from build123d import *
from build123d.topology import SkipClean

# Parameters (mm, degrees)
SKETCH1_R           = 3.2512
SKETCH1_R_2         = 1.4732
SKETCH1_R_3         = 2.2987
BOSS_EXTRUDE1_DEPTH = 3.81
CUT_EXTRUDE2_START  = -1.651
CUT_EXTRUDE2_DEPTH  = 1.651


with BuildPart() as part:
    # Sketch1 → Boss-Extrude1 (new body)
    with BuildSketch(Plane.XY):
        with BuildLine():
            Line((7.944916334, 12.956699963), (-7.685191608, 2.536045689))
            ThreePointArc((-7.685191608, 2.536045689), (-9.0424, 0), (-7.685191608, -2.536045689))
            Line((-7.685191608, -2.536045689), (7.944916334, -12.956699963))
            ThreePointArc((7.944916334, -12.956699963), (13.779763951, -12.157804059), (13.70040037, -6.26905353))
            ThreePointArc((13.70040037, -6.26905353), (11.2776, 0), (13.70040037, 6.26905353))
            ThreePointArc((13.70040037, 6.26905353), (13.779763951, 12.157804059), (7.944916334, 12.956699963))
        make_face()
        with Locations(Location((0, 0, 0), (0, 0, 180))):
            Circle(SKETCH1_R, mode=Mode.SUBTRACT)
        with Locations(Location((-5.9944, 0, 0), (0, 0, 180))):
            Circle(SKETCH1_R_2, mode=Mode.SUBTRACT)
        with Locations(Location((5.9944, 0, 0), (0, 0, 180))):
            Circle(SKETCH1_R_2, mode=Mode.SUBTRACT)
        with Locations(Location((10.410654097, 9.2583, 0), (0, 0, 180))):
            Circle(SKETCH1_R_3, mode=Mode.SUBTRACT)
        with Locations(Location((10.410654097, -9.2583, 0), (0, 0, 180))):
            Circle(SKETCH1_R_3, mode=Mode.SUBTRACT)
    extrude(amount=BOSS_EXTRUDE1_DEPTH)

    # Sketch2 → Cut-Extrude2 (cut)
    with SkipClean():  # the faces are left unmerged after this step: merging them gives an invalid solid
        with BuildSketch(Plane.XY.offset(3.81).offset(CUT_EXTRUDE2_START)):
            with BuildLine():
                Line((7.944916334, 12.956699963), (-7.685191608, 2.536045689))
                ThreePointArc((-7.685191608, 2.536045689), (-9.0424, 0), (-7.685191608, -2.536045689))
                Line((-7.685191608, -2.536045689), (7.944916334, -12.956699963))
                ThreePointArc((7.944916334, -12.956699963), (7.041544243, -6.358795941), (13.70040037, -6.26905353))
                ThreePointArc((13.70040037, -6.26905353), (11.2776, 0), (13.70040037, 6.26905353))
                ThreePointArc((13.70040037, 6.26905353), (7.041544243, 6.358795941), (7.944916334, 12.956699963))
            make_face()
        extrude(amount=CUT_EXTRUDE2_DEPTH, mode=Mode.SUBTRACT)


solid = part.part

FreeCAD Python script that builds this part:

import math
import FreeCAD as App
import Part
import Sketcher
Q = App.Units.Quantity

doc = App.newDocument("Part")
body = doc.addObject("PartDesign::Body", "Body")

# Sketch on XY plane
sketch1 = body.newObject("Sketcher::SketchObject", "Sketch")
sketch1.AttachmentSupport = (doc.getObject("XY_Plane"), [""])
sketch1.MapMode = "FlatFace"
sketch1.addGeometry(Part.LineSegment(App.Vector(7.944916, 12.9567, 0), App.Vector(-7.685192, 2.536046, 0)), False)
sketch1.addGeometry(Part.ArcOfCircle(Part.Circle(App.Vector(-5.9944, 0, 0), App.Vector(0, 0, 1), 3.048), math.radians(123.691545), math.radians(236.308455)), False)
sketch1.addGeometry(Part.LineSegment(App.Vector(-7.685192, -2.536046, 0), App.Vector(7.944916, -12.9567, 0)), False)
sketch1.addGeometry(Part.ArcOfCircle(Part.Circle(App.Vector(10.410654, -9.2583, 0), App.Vector(0, 0, 1), 4.445), math.radians(-123.691545), math.radians(42.260031)), False)
sketch1.addGeometry(Part.ArcOfCircle(Part.Circle(App.Vector(20.599663, 0, 0), App.Vector(0, 0, 1), 9.322063), math.radians(137.739969), math.radians(222.260031)), False)
sketch1.addGeometry(Part.ArcOfCircle(Part.Circle(App.Vector(10.410654, 9.2583, 0), App.Vector(0, 0, 1), 4.445), math.radians(-42.260031), math.radians(123.691545)), False)
sketch1.addGeometry(Part.Circle(App.Vector(-5.9944, 0, 0), App.Vector(0, 0, 1), 1.4732), False)
sketch1.addGeometry(Part.Circle(App.Vector(10.410654, -9.2583, 0), App.Vector(0, 0, 1), 2.2987), False)
sketch1.addGeometry(Part.Circle(App.Vector(5.9944, 0, 0), App.Vector(0, 0, 1), 1.4732), False)
sketch1.addGeometry(Part.Circle(App.Vector(0, 0, 0), App.Vector(0, 0, 1), 3.2512), False)
sketch1.addGeometry(Part.Circle(App.Vector(10.410654, 9.2583, 0), App.Vector(0, 0, 1), 2.2987), False)
sketch1.addConstraint(Sketcher.Constraint("Tangent", 0, 2, 1, 1))
sketch1.addConstraint(Sketcher.Constraint("Tangent", 1, 2, 2, 1))
sketch1.addConstraint(Sketcher.Constraint("Tangent", 2, 2, 3, 1))
sketch1.addConstraint(Sketcher.Constraint("Tangent", 3, 2, 4, 2))
sketch1.addConstraint(Sketcher.Constraint("Tangent", 4, 1, 5, 1))
sketch1.addConstraint(Sketcher.Constraint("Tangent", 5, 2, 0, 1))
sketch1.addConstraint(Sketcher.Constraint("Coincident", 9, 3, -1, 1))
sketch1.addConstraint(Sketcher.Constraint("Coincident", 6, 3, 1, 3))
sketch1.addConstraint(Sketcher.Constraint("Coincident", 7, 3, 3, 3))
sketch1.addConstraint(Sketcher.Constraint("Coincident", 10, 3, 5, 3))
sketch1.addConstraint(Sketcher.Constraint("Equal", 3, 5))
sketch1.addConstraint(Sketcher.Constraint("Equal", 6, 8))
sketch1.addConstraint(Sketcher.Constraint("Equal", 7, 10))
sketch1.addConstraint(Sketcher.Constraint("Symmetric", 1, 3, 8, 3, -1, 1))
sketch1.addConstraint(Sketcher.Constraint("Symmetric", 3, 3, 5, 3, -1))
sketch1.addConstraint(Sketcher.Constraint("PointOnObject", 1, 3, -1))
sketch1.addConstraint(Sketcher.Constraint("Radius", 1, Q("0.12 in")))
sketch1.addConstraint(Sketcher.Constraint("Diameter", 6, Q("0.116 in")))
sketch1.addConstraint(Sketcher.Constraint("Diameter", 7, Q("0.181 in")))
sketch1.addConstraint(Sketcher.Constraint("Diameter", 9, Q("0.256 in")))
sketch1.addConstraint(Sketcher.Constraint("Radius", 3, Q("0.175 in")))
sketch1.addConstraint(Sketcher.Constraint("DistanceX", 1, 3, -1, 1, Q("0.236 in")))
sketch1.addConstraint(Sketcher.Constraint("DistanceY", 3, 3, 5, 3, Q("0.729 in")))
sketch1.addConstraint(Sketcher.Constraint("Radius", 4, Q("9.322063 mm")))
sketch1.addConstraint(Sketcher.Constraint("DistanceY", 2, 2, -1, 1, Q("12.9567 mm")))
pad1 = body.newObject("PartDesign::Pad", "Pad")
pad1.Profile = sketch1
pad1.Length = Q("0.15 in")

# Sketch on XY plane
sketch2 = body.newObject("Sketcher::SketchObject", "Sketch001")
sketch2.AttachmentSupport = (doc.getObject("XY_Plane"), [""])
sketch2.MapMode = "FlatFace"
sketch2.AttachmentOffset = App.Placement(App.Vector(0, 0, 0.085 * 25.4), App.Rotation())
sketch2.addGeometry(Part.LineSegment(App.Vector(7.944916, 12.9567, 0), App.Vector(-7.685192, 2.536046, 0)), False)
sketch2.addGeometry(Part.ArcOfCircle(Part.Circle(App.Vector(-5.9944, 0, 0), App.Vector(0, 0, 1), 3.048), math.radians(123.691545), math.radians(236.308455)), False)
sketch2.addGeometry(Part.LineSegment(App.Vector(-7.685192, -2.536046, 0), App.Vector(7.944916, -12.9567, 0)), False)
sketch2.addGeometry(Part.ArcOfCircle(Part.Circle(App.Vector(10.410654, -9.2583, 0), App.Vector(0, 0, 1), 4.445), math.radians(42.260031), math.radians(236.308455)), False)
sketch2.addGeometry(Part.ArcOfCircle(Part.Circle(App.Vector(20.599663, 0, 0), App.Vector(0, 0, 1), 9.322063), math.radians(137.739969), math.radians(222.260031)), False)
sketch2.addGeometry(Part.ArcOfCircle(Part.Circle(App.Vector(10.410654, 9.2583, 0), App.Vector(0, 0, 1), 4.445), math.radians(123.691545), math.radians(317.739969)), False)
sketch2.addConstraint(Sketcher.Constraint("Tangent", 0, 2, 1, 1))
sketch2.addConstraint(Sketcher.Constraint("Tangent", 1, 2, 2, 1))
sketch2.addConstraint(Sketcher.Constraint("Tangent", 2, 2, 3, 2))
sketch2.addConstraint(Sketcher.Constraint("Tangent", 3, 1, 4, 2))
sketch2.addConstraint(Sketcher.Constraint("Tangent", 4, 1, 5, 2))
sketch2.addConstraint(Sketcher.Constraint("Tangent", 5, 1, 0, 1))
sketch2.addConstraint(Sketcher.Constraint("Equal", 3, 5))
sketch2.addConstraint(Sketcher.Constraint("Symmetric", 3, 3, 5, 3, -1))
sketch2.addConstraint(Sketcher.Constraint("PointOnObject", 1, 3, -1))
sketch2.addConstraint(Sketcher.Constraint("Radius", 1, Q("0.12 in")))
sketch2.addConstraint(Sketcher.Constraint("Radius", 3, Q("0.175 in")))
sketch2.addConstraint(Sketcher.Constraint("DistanceX", 1, 3, -1, 1, Q("0.236 in")))
sketch2.addConstraint(Sketcher.Constraint("DistanceY", 3, 3, 5, 3, Q("0.729 in")))
sketch2.addConstraint(Sketcher.Constraint("Radius", 4, Q("9.322063 mm")))
sketch2.addConstraint(Sketcher.Constraint("DistanceY", 2, 2, -1, 1, Q("12.9567 mm")))
pocket1 = body.newObject("PartDesign::Pocket", "Pocket")
pocket1.Profile = sketch2
pocket1.Length = Q("0.065 in")
pocket1.Reversed = True

doc.recompute()
